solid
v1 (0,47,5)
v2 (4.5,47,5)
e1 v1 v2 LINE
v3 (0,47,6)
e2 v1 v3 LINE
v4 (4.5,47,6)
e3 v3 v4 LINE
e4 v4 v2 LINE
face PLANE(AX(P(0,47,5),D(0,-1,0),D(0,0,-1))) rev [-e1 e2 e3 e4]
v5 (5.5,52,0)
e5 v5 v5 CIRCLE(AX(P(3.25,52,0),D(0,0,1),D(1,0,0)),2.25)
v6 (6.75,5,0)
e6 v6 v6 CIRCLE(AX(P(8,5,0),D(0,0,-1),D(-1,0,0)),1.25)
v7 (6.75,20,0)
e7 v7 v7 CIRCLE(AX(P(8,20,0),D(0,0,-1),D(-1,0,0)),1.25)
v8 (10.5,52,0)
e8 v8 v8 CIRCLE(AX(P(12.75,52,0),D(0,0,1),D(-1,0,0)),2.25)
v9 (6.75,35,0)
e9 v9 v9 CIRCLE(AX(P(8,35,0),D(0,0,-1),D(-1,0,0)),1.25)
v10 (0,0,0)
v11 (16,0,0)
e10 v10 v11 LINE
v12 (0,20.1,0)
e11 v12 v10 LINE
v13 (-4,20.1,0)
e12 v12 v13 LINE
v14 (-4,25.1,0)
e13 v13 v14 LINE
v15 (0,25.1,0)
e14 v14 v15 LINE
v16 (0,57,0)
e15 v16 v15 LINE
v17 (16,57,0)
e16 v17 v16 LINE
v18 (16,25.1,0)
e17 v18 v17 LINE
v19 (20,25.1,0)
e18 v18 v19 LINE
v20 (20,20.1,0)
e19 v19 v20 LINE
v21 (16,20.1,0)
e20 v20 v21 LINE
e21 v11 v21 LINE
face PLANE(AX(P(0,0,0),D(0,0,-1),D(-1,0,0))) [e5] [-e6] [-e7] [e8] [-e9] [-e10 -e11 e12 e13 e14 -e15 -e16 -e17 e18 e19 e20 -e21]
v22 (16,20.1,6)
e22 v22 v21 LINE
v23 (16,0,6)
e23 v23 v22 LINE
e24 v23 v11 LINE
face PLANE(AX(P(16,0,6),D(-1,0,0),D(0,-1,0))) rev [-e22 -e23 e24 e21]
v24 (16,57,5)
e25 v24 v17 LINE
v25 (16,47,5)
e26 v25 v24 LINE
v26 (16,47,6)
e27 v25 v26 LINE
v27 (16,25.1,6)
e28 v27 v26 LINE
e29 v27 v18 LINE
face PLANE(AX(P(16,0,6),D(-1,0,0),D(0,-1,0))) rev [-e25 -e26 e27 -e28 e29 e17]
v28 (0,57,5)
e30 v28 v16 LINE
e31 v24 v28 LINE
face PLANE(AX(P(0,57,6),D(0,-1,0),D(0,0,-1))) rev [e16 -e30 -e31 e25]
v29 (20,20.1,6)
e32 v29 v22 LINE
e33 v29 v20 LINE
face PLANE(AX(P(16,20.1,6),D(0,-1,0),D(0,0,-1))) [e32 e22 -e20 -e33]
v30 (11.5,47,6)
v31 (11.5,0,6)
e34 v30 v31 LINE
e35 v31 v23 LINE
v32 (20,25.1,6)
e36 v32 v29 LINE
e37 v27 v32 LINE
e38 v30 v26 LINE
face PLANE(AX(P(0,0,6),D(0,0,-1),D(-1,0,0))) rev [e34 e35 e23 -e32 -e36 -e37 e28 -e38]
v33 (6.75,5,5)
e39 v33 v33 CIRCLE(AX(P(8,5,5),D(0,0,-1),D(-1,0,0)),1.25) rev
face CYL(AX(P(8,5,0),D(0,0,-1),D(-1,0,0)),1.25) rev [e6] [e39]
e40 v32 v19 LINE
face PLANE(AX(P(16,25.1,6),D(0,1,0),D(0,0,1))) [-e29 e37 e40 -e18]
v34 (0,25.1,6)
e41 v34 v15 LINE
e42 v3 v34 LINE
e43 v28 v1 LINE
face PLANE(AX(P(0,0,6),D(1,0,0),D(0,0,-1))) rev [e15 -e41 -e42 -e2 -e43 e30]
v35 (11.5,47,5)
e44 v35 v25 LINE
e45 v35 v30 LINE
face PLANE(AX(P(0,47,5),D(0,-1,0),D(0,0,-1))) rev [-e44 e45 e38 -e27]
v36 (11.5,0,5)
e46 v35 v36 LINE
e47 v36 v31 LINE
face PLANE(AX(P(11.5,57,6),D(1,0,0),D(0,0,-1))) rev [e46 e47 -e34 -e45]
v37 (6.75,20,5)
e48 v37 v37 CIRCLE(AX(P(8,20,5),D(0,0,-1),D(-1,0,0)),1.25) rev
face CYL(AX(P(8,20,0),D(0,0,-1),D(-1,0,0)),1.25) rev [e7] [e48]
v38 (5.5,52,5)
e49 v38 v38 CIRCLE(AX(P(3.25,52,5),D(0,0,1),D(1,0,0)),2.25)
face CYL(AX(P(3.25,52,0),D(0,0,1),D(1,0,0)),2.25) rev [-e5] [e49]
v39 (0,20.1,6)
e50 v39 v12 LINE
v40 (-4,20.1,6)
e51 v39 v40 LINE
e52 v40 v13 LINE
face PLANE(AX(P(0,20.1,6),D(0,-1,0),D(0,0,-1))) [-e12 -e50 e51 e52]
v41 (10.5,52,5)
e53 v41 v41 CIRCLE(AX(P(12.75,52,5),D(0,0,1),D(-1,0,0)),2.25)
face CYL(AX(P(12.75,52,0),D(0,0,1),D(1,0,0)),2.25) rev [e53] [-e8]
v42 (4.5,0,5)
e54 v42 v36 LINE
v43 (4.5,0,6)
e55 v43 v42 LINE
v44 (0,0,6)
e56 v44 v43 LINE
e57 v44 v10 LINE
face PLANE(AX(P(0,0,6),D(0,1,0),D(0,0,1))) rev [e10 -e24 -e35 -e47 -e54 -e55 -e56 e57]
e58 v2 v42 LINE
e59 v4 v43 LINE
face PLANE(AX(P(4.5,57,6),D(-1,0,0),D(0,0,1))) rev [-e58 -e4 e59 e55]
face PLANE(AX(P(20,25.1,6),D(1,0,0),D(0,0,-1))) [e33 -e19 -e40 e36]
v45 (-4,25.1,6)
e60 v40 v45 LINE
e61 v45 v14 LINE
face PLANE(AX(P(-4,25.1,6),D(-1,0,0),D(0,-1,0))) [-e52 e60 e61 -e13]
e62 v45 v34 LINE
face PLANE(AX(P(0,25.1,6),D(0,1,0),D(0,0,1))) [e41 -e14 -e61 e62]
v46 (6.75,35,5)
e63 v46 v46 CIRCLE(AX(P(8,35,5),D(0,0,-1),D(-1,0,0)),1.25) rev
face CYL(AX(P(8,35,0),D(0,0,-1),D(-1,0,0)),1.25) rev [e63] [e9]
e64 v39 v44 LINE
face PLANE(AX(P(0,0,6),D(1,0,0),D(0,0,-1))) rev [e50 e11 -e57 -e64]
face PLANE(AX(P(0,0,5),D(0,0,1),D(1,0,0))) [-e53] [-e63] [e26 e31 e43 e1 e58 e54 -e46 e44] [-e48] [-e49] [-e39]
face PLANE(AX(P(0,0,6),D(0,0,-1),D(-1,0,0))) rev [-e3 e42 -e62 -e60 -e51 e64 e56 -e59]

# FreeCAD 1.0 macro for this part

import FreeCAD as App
import Part
import Sketcher


def add_polygon(sketch, points):
    """Adds a closed chain of lines whose ends are joined by coincident constraints."""
    first, n = sketch.GeometryCount, len(points)
    for a, b in zip(points, points[1:] + points[:1]):
        sketch.addGeometry(Part.LineSegment(App.Vector(*a, 0), App.Vector(*b, 0)), False)
    for i in range(n):
        sketch.addConstraint(Sketcher.Constraint("Coincident", first + i, 2, first + (i + 1) % n, 1))

doc = App.newDocument("Part")
body = doc.addObject("PartDesign::Body", "Body")

# Sketch on XY plane
sketch1 = body.newObject("Sketcher::SketchObject", "Sketch")
sketch1.AttachmentSupport = (doc.getObject("XY_Plane"), [""])
sketch1.MapMode = "FlatFace"
add_polygon(sketch1, [(0, 57), (0, 0), (16, 0), (16, 57)])  # lines 0-3
sketch1.addConstraint(Sketcher.Constraint("Vertical", 0))
sketch1.addConstraint(Sketcher.Constraint("Horizontal", 1))
sketch1.addConstraint(Sketcher.Constraint("Vertical", 2))
sketch1.addConstraint(Sketcher.Constraint("Horizontal", 3))
sketch1.addConstraint(Sketcher.Constraint("Coincident", 0, 2, -1, 1))
sketch1.addConstraint(Sketcher.Constraint("DistanceX", 1, 1, 1, 2, 16.0))
sketch1.addConstraint(Sketcher.Constraint("DistanceY", 0, 2, 0, 1, 57.0))
pad1 = body.newObject("PartDesign::Pad", "Pad")
pad1.Profile = sketch1
pad1.Length = 6

# Sketch on XY plane
sketch2 = body.newObject("Sketcher::SketchObject", "Sketch001")
sketch2.AttachmentSupport = (doc.getObject("XY_Plane"), [""])
sketch2.MapMode = "FlatFace"
sketch2.AttachmentOffset = App.Placement(App.Vector(0, 0, 6), App.Rotation())
add_polygon(sketch2, [(0, 57), (0, 47), (31.7209, 47), (31.7209, 57)])  # lines 0-3
sketch2.addConstraint(Sketcher.Constraint("Vertical", 0))
sketch2.addConstraint(Sketcher.Constraint("Horizontal", 1))
sketch2.addConstraint(Sketcher.Constraint("Vertical", 2))
sketch2.addConstraint(Sketcher.Constraint("Horizontal", 3))
sketch2.addConstraint(Sketcher.Constraint("PointOnObject", 0, 2, -2))
sketch2.addConstraint(Sketcher.Constraint("DistanceY", 0, 2, 0, 1, 10.0))
sketch2.addConstraint(Sketcher.Constraint("DistanceY", -1, 1, 0, 2, 47.0))
sketch2.addConstraint(Sketcher.Constraint("DistanceX", 1, 1, 1, 2, 31.7209))
pocket1 = body.newObject("PartDesign::Pocket", "Pocket")
pocket1.Profile = sketch2
pocket1.Length = 1

# Sketch on XY plane
sketch3 = body.newObject("Sketcher::SketchObject", "Sketch002")
sketch3.AttachmentSupport = (doc.getObject("XY_Plane"), [""])
sketch3.MapMode = "FlatFace"
add_polygon(sketch3, [(20, 25.1), (20, 20.1), (16, 20.1), (16, 25.1)])  # lines 0-3
add_polygon(sketch3, [(0, 25.1), (0, 20.1), (-4, 20.1), (-4, 25.1)])  # lines 4-7
sketch3.addConstraint(Sketcher.Constraint("Vertical", 0))
sketch3.addConstraint(Sketcher.Constraint("Horizontal", 1))
sketch3.addConstraint(Sketcher.Constraint("Vertical", 2))
sketch3.addConstraint(Sketcher.Constraint("Horizontal", 3))
sketch3.addConstraint(Sketcher.Constraint("Vertical", 4))
sketch3.addConstraint(Sketcher.Constraint("Horizontal", 5))
sketch3.addConstraint(Sketcher.Constraint("Vertical", 6))
sketch3.addConstraint(Sketcher.Constraint("Horizontal", 7))
sketch3.addConstraint(Sketcher.Constraint("PointOnObject", 4, 2, -2))
sketch3.addConstraint(Sketcher.Constraint("Horizontal", 1, 2, 4, 2))
sketch3.addConstraint(Sketcher.Constraint("Horizontal", 3, 2, 6, 2))
sketch3.addConstraint(Sketcher.Constraint("Equal", 3, 5))
sketch3.addConstraint(Sketcher.Constraint("DistanceX", 1, 2, 1, 1, 4.0))
sketch3.addConstraint(Sketcher.Constraint("DistanceY", 0, 2, 0, 1, 5.0))
sketch3.addConstraint(Sketcher.Constraint("DistanceX", -1, 1, 0, 2, 20.0))
sketch3.addConstraint(Sketcher.Constraint("DistanceY", -1, 1, 0, 2, 20.1))
pad2 = body.newObject("PartDesign::Pad", "Pad001")
pad2.Profile = sketch3
pad2.Length = 6

# Sketch on XY plane
sketch4 = body.newObject("Sketcher::SketchObject", "Sketch003")
sketch4.AttachmentSupport = (doc.getObject("XY_Plane"), [""])
sketch4.MapMode = "FlatFace"
sketch4.addGeometry(Part.Circle(App.Vector(8, 35, 0), App.Vector(0, 0, 1), 1.25), False)
sketch4.addGeometry(Part.Circle(App.Vector(8, 20, 0), App.Vector(0, 0, 1), 1.25), False)
sketch4.addGeometry(Part.Circle(App.Vector(8, 5, 0), App.Vector(0, 0, 1), 1.25), False)
sketch4.addConstraint(Sketcher.Constraint("Equal", 0, 1))
sketch4.addConstraint(Sketcher.Constraint("Equal", 1, 2))
sketch4.addConstraint(Sketcher.Constraint("Vertical", 0, 3, 1, 3))
sketch4.addConstraint(Sketcher.Constraint("Vertical", 1, 3, 2, 3))
sketch4.addConstraint(Sketcher.Constraint("Diameter", 0, 2.5))
sketch4.addConstraint(Sketcher.Constraint("DistanceX", -1, 1, 0, 3, 8.0))
sketch4.addConstraint(Sketcher.Constraint("DistanceY", -1, 1, 0, 3, 35.0))
sketch4.addConstraint(Sketcher.Constraint("DistanceY", -1, 1, 1, 3, 20.0))
sketch4.addConstraint(Sketcher.Constraint("DistanceY", -1, 1, 2, 3, 5.0))
doc.recompute()
hole = body.newObject("PartDesign::Hole", "Hole")
hole.Profile = sketch4
hole.ThreadType = "None"
hole.Diameter = 2.5
hole.DepthType = "Dimension"
hole.Depth = 7.5
hole.DrillPoint = "Angled"
hole.DrillPointAngle = 118
hole.Reversed = True

# Sketch on XZ plane
sketch5 = body.newObject("Sketcher::SketchObject", "Sketch004")
sketch5.AttachmentSupport = (doc.getObject("XZ_Plane"), [""])
sketch5.MapMode = "FlatFace"
add_polygon(sketch5, [(4.5, 6), (4.5, 5), (11.5, 5), (11.5, 6)])  # lines 0-3
sketch5.addConstraint(Sketcher.Constraint("Vertical", 0))
sketch5.addConstraint(Sketcher.Constraint("Horizontal", 1))
sketch5.addConstraint(Sketcher.Constraint("Vertical", 2))
sketch5.addConstraint(Sketcher.Constraint("Horizontal", 3))
sketch5.addConstraint(Sketcher.Constraint("DistanceX", 1, 1, 1, 2, 7.0))
sketch5.addConstraint(Sketcher.Constraint("DistanceY", 0, 2, 0, 1, 1.0))
sketch5.addConstraint(Sketcher.Constraint("DistanceY", -1, 1, 0, 2, 5.0))
sketch5.addConstraint(Sketcher.Constraint("DistanceX", -1, 1, 0, 2, 4.5))
pocket2 = body.newObject("PartDesign::Pocket", "Pocket001")
pocket2.Profile = sketch5
pocket2.Type = "ThroughAll"

# Sketch on XY plane
sketch6 = body.newObject("Sketcher::SketchObject", "Sketch005")
sketch6.AttachmentSupport = (doc.getObject("XY_Plane"), [""])
sketch6.MapMode = "FlatFace"
sketch6.AttachmentOffset = App.Placement(App.Vector(0, 0, 5), App.Rotation())
sketch6.addGeometry(Part.Circle(App.Vector(3.25, 52, 0), App.Vector(0, 0, 1), 2.25), False)
sketch6.addGeometry(Part.Circle(App.Vector(12.75, 52, 0), App.Vector(0, 0, 1), 2.25), False)
sketch6.addConstraint(Sketcher.Constraint("Equal", 0, 1))
sketch6.addConstraint(Sketcher.Constraint("Horizontal", 0, 3, 1, 3))
sketch6.addConstraint(Sketcher.Constraint("Diameter", 0, 4.5))
sketch6.addConstraint(Sketcher.Constraint("DistanceY", -1, 1, 0, 3, 52.0))
sketch6.addConstraint(Sketcher.Constraint("DistanceX", 0, 3, 1, 3, 9.5))
sketch6.addConstraint(Sketcher.Constraint("DistanceX", -1, 1, 0, 3, 3.25))
pocket3 = body.newObject("PartDesign::Pocket", "Pocket002")
pocket3.Profile = sketch6
pocket3.Type = "ThroughAll"

doc.recompute()
